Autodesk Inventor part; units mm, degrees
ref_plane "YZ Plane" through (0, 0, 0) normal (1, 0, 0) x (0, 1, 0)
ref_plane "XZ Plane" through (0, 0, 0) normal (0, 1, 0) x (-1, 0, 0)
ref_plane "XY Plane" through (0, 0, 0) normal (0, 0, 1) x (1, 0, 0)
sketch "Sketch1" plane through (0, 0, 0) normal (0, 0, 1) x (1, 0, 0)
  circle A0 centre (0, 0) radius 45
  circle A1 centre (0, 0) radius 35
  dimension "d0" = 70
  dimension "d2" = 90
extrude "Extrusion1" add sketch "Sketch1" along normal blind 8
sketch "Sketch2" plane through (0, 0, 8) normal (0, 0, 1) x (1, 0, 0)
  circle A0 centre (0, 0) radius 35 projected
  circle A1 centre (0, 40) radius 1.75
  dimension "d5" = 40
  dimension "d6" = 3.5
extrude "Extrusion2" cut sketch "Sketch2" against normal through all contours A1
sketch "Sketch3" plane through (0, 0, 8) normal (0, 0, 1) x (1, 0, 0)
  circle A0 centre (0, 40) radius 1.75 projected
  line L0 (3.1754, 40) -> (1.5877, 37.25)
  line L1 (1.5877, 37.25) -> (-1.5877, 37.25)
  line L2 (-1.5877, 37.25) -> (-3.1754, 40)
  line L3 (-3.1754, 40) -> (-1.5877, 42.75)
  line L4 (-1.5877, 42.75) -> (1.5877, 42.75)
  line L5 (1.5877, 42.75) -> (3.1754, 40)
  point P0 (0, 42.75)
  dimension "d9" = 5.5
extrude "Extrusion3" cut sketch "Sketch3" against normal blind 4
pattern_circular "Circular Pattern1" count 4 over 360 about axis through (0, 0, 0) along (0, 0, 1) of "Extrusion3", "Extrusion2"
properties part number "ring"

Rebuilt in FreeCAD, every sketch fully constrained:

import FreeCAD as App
import Part
import Sketcher

V = App.Vector
Q = App.Units.Quantity


def add_polygon(sketch, points):
    """Adds a closed chain of lines whose ends are joined by coincident constraints."""
    first, n = sketch.GeometryCount, len(points)
    for a, b in zip(points, points[1:] + points[:1]):
        sketch.addGeometry(Part.LineSegment(App.Vector(*a, 0), App.Vector(*b, 0)), False)
    for i in range(n):
        sketch.addConstraint(Sketcher.Constraint("Coincident", first + i, 2, first + (i + 1) % n, 1))

doc = App.newDocument("Part")
params = doc.addObject("Spreadsheet::Sheet", "Params")
for row, (alias, value) in enumerate([
    ("sketch1_diameter", "90 mm"),
    ("sketch1_diameter2", "70 mm"),
    ("pad1_length", "8 mm"),
    ("sketch2_diameter", "3.5 mm"),
    ("sketch3_diameter", "3.5 mm"),
    ("pocket2_length", "4 mm"),
], start=1):
    params.set(f"A{row}", alias)
    params.set(f"B{row}", "=" + value)
    params.setAlias(f"B{row}", alias)

body = doc.addObject("PartDesign::Body", "Body")

# Sketch on XY plane
sketch1 = doc.addObject("Sketcher::SketchObject", "Sketch")
body.addObject(sketch1)
sketch1.AttachmentSupport = (doc.XY_Plane, [""])
sketch1.MapMode = "FlatFace"
sketch1.addGeometry(Part.Circle(V(0, 0, 0), V(0, 0, 1), 45), False)
sketch1.addGeometry(Part.Circle(V(0, 0, 0), V(0, 0, 1), 35), False)
sketch1.addConstraint(Sketcher.Constraint("Coincident", 0, 3, -1, 1))
sketch1.addConstraint(Sketcher.Constraint("Coincident", 1, 3, -1, 1))
sketch1.addConstraint(Sketcher.Constraint("Diameter", 0, 90.0))
sketch1.addConstraint(Sketcher.Constraint("Diameter", 1, 70.0))
sketch1.setExpression("Constraints[2]", "Params.sketch1_diameter")
sketch1.setExpression("Constraints[3]", "Params.sketch1_diameter2")
pad1 = doc.addObject("PartDesign::Pad", "Pad")
body.addObject(pad1)
pad1.Profile = sketch1
pad1.setExpression("Length", "Params.pad1_length")

# Sketch on XY plane
sketch2 = doc.addObject("Sketcher::SketchObject", "Sketch001")
body.addObject(sketch2)
sketch2.AttachmentSupport = (doc.XY_Plane, [""])
sketch2.MapMode = "FlatFace"
sketch2.AttachmentOffset = App.Placement(V(0, 0, 8), App.Rotation())
sketch2.addGeometry(Part.Circle(V(0, 40, 0), V(0, 0, 1), 1.75), False)
sketch2.addConstraint(Sketcher.Constraint("PointOnObject", 0, 3, -2))
sketch2.addConstraint(Sketcher.Constraint("Diameter", 0, 3.5))
sketch2.addConstraint(Sketcher.Constraint("DistanceY", -1, 1, 0, 3, 40.0))
sketch2.setExpression("Constraints[1]", "Params.sketch2_diameter")
pocket1 = doc.addObject("PartDesign::Pocket", "Pocket")
body.addObject(pocket1)
pocket1.Profile = sketch2
pocket1.Type = "ThroughAll"

# Sketch on XY plane
sketch3 = doc.addObject("Sketcher::SketchObject", "Sketch002")
body.addObject(sketch3)
sketch3.AttachmentSupport = (doc.XY_Plane, [""])
sketch3.MapMode = "FlatFace"
sketch3.AttachmentOffset = App.Placement(V(0, 0, 8), App.Rotation())
add_polygon(sketch3, [(1.5877, 37.25), (3.1754, 40), (1.5877, 42.75), (-1.5877, 42.75), (-3.1754, 40), (-1.5877, 37.25)])  # lines 0-5
sketch3.addGeometry(Part.Circle(V(0, 40, 0), V(0, 0, 1), 1.75), False)  # 6
sketch3.addConstraint(Sketcher.Constraint("Horizontal", 2))
sketch3.addConstraint(Sketcher.Constraint("Horizontal", 5))
sketch3.addConstraint(Sketcher.Constraint("Symmetric", 0, 2, 3, 2, -2))
sketch3.addConstraint(Sketcher.Constraint("PointOnObject", 6, 3, -2))
sketch3.addConstraint(Sketcher.Constraint("Parallel", 0, 3))
sketch3.addConstraint(Sketcher.Constraint("Parallel", 1, 4))
sketch3.addConstraint(Sketcher.Constraint("Horizontal", 6, 3, 0, 2))
sketch3.addConstraint(Sketcher.Constraint("Vertical", 2, 2, 4, 2))
sketch3.addConstraint(Sketcher.Constraint("Vertical", 1, 2, 5, 2))
sketch3.addConstraint(Sketcher.Constraint("Diameter", 6, 3.5))
sketch3.addConstraint(Sketcher.Constraint("DistanceY", 4, 2, 2, 2, 5.5))
sketch3.addConstraint(Sketcher.Constraint("Angle", 0, Q("60.0002 deg")))
sketch3.addConstraint(Sketcher.Constraint("DistanceY", -1, 1, 6, 3, 40.0))
sketch3.addConstraint(Sketcher.Constraint("DistanceX", 2, 2, 2, 1, 3.1754))
sketch3.setExpression("Constraints[15]", "Params.sketch3_diameter")
pocket2 = doc.addObject("PartDesign::Pocket", "Pocket001")
body.addObject(pocket2)
pocket2.Profile = sketch3
pocket2.setExpression("Length", "Params.pocket2_length")
doc.recompute()

polarpattern = doc.addObject("PartDesign::PolarPattern", "PolarPattern")
body.addObject(polarpattern)
polarpattern.Originals = [pocket2, pocket1]
polarpattern.Axis = (doc.Z_Axis, [""])
polarpattern.Angle = 360
polarpattern.Occurrences = 4
body.Tip = polarpattern

doc.recompute()
